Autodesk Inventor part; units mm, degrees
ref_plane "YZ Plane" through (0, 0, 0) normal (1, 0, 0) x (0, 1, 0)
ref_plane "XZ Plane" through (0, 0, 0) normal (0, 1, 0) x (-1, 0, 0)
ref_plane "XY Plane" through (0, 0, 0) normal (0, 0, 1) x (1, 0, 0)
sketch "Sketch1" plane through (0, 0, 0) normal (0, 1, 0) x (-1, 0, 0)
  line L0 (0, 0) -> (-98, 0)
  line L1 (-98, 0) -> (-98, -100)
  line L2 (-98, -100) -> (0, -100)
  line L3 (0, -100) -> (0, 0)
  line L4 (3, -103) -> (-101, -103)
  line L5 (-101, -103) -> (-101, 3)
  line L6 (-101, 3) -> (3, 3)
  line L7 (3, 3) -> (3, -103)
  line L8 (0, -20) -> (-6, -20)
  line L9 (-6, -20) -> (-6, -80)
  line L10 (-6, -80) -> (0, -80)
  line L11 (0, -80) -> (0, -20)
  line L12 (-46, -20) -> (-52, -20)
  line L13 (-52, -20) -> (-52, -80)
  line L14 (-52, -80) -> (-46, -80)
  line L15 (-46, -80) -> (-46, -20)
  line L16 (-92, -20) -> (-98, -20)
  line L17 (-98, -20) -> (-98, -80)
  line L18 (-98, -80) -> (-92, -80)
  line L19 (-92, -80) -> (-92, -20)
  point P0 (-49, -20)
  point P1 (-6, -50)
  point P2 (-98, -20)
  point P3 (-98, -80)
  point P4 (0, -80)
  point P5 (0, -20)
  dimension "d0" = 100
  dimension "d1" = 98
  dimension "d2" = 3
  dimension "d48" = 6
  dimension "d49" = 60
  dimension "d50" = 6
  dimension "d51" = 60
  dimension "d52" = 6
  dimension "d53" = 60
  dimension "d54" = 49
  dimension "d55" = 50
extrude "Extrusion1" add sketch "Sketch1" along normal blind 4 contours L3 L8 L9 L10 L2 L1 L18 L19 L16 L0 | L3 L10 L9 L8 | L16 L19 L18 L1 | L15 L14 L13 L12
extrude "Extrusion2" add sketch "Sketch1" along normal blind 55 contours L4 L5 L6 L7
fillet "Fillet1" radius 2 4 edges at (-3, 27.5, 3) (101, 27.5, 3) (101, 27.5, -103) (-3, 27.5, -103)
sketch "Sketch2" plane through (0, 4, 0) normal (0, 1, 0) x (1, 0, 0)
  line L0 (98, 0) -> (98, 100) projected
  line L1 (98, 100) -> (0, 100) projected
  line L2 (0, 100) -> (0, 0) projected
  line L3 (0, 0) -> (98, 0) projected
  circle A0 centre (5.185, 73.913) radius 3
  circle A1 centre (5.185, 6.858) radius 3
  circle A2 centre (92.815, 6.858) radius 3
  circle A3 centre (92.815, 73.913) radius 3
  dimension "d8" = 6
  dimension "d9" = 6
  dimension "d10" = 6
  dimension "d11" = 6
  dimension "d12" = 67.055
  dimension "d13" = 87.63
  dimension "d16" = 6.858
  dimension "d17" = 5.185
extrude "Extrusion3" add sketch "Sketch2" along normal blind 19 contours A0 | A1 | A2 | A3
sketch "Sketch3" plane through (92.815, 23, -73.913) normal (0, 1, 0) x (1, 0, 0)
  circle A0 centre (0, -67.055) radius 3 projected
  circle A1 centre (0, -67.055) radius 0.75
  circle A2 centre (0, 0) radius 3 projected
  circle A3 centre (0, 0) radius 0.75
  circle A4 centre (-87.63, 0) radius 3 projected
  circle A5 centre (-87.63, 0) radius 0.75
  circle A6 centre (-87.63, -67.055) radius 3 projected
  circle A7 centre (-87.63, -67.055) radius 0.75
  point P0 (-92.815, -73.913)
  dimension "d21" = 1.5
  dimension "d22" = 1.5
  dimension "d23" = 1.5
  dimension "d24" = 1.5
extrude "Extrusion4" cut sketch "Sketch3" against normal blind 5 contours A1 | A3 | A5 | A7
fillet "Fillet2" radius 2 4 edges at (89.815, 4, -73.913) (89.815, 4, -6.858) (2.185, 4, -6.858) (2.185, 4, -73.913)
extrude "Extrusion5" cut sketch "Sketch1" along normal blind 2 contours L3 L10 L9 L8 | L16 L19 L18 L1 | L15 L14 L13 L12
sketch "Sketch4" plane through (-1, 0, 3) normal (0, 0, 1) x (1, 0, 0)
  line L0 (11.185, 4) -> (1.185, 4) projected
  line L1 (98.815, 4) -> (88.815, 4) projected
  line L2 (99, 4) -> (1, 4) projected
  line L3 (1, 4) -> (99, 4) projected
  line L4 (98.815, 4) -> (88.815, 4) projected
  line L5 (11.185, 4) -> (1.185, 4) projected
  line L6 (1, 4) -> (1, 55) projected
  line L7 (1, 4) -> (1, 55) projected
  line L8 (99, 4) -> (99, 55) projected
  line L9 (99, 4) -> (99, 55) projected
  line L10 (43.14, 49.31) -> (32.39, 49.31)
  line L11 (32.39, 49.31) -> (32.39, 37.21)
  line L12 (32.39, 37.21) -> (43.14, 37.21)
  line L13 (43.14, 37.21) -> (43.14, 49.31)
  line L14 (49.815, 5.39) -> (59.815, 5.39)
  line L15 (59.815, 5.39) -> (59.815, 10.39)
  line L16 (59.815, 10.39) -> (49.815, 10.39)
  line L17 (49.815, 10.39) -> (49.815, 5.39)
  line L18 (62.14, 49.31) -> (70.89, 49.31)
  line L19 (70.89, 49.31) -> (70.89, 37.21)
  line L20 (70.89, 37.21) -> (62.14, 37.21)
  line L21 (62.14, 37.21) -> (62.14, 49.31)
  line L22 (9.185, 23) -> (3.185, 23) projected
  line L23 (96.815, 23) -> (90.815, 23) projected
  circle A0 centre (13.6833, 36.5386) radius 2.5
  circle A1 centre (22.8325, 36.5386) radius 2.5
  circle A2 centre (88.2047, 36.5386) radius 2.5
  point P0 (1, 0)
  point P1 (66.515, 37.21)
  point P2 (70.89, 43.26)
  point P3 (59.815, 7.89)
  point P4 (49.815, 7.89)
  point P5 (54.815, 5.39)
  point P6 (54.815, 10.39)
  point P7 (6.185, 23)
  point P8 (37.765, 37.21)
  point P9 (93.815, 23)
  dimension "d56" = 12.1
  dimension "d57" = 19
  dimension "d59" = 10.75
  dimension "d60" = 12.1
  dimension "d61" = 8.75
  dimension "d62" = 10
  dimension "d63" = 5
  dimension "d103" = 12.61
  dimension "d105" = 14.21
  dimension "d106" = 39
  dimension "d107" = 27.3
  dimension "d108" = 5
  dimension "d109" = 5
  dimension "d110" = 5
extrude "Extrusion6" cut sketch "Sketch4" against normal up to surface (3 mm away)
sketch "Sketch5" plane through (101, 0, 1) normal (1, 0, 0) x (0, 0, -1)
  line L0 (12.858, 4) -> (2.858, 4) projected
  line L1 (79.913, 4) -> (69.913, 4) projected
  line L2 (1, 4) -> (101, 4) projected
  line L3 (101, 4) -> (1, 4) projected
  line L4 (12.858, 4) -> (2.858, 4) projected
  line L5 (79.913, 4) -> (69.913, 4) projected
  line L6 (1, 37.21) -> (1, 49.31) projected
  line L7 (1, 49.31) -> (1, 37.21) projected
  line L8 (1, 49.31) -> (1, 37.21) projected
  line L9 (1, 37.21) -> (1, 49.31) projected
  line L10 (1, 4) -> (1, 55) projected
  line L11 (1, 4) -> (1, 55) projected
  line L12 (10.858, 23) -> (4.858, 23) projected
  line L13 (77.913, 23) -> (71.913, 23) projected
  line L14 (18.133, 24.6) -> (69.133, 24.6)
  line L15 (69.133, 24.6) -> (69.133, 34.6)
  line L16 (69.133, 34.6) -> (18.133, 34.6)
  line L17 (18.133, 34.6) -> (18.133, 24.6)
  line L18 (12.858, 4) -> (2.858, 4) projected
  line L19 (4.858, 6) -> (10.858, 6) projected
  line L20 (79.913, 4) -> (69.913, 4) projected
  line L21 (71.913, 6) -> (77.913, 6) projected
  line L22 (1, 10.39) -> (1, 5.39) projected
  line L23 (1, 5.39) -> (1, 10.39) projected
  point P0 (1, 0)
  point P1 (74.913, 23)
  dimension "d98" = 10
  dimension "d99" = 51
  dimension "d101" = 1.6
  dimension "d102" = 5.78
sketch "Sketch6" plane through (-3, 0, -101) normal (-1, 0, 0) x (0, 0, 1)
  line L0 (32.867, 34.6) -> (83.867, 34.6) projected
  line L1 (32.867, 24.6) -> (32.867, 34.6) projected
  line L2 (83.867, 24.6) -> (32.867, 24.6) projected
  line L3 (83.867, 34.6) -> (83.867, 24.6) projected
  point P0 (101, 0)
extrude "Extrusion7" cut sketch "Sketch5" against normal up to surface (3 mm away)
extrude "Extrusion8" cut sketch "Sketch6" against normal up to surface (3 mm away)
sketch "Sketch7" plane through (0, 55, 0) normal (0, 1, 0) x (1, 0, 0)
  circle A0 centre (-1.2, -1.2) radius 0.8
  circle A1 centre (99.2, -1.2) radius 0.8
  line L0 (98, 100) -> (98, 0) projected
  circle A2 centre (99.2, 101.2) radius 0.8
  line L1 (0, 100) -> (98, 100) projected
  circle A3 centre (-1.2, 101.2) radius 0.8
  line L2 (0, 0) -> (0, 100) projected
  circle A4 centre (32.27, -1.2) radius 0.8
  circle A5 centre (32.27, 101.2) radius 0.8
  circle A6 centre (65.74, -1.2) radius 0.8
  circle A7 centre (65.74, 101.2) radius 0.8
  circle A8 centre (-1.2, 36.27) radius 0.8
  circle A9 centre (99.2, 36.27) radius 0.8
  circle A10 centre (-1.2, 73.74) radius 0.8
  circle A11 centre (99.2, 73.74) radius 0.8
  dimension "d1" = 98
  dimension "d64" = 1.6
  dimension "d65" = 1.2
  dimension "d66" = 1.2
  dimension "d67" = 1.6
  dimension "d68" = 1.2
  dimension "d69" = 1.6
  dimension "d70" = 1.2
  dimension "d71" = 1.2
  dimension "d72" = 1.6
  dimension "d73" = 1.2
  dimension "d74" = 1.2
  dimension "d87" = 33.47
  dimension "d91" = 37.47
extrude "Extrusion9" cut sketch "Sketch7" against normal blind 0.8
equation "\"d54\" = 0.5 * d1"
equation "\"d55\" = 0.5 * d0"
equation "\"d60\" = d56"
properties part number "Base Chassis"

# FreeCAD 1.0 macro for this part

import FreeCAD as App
import Part
import Sketcher


def edges_at(feature, points):
    """Names of the edges that pass closest to the given points."""
    edges = feature.Shape.Edges
    near = lambda p: min(range(len(edges)), key=lambda i: edges[i].distToShape(Part.Vertex(*p))[0])
    return sorted({f"Edge{near(p) + 1}" for p in points})


def add_polygon(sketch, points):
    """Adds a closed chain of lines whose ends are joined by coincident constraints."""
    first, n = sketch.GeometryCount, len(points)
    for a, b in zip(points, points[1:] + points[:1]):
        sketch.addGeometry(Part.LineSegment(App.Vector(*a, 0), App.Vector(*b, 0)), False)
    for i in range(n):
        sketch.addConstraint(Sketcher.Constraint("Coincident", first + i, 2, first + (i + 1) % n, 1))

doc = App.newDocument("Part")
body = doc.addObject("PartDesign::Body", "Body")

# Sketch on XZ plane
sketch1 = body.newObject("Sketcher::SketchObject", "Sketch")
sketch1.AttachmentSupport = (doc.getObject("XZ_Plane"), [""])
sketch1.MapMode = "FlatFace"
add_polygon(sketch1, [(0, 0), (98, 0), (98, -100), (0, -100)])  # lines 0-3
sketch1.addConstraint([
    Sketcher.Constraint("Horizontal", 0),
    Sketcher.Constraint("Vertical", 1),
    Sketcher.Constraint("Horizontal", 2),
    Sketcher.Constraint("Vertical", 3),
    Sketcher.Constraint("Coincident", 3, 2, -1, 1),
    Sketcher.Constraint("DistanceX", 0, 1, 0, 2, 98.0),
    Sketcher.Constraint("DistanceY", 1, 2, 1, 1, 100.0),
])
pad1 = body.newObject("PartDesign::Pad", "Pad")
pad1.Profile = sketch1
pad1.Length = 4
pad1.Reversed = True

# Sketch on XZ plane
sketch2 = body.newObject("Sketcher::SketchObject", "Sketch001")
sketch2.AttachmentSupport = (doc.getObject("XZ_Plane"), [""])
sketch2.MapMode = "FlatFace"
add_polygon(sketch2, [(101, -103), (-3, -103), (-3, 3), (101, 3)])  # lines 0-3
add_polygon(sketch2, [(98, 0), (0, 0), (0, -100), (98, -100)])  # lines 4-7
sketch2.addConstraint([
    Sketcher.Constraint("Horizontal", 0),
    Sketcher.Constraint("Vertical", 1),
    Sketcher.Constraint("Horizontal", 2),
    Sketcher.Constraint("Vertical", 3),
    Sketcher.Constraint("Horizontal", 4),
    Sketcher.Constraint("Vertical", 5),
    Sketcher.Constraint("Horizontal", 6),
    Sketcher.Constraint("Vertical", 7),
    Sketcher.Constraint("Coincident", 4, 2, -1, 1),
    Sketcher.Constraint("DistanceX", 4, 2, 4, 1, 98.0),
    Sketcher.Constraint("DistanceY", 5, 2, 5, 1, 100.0),
    Sketcher.Constraint("DistanceX", 0, 2, -1, 1, 3.0),
    Sketcher.Constraint("DistanceY", -1, 1, 1, 2, 3.0),
    Sketcher.Constraint("DistanceY", 0, 2, 5, 2, 3.0),
    Sketcher.Constraint("DistanceX", 6, 2, 3, 2, 3.0),
])
pad2 = body.newObject("PartDesign::Pad", "Pad001")
pad2.Profile = sketch2
pad2.Length = 55
pad2.Reversed = True
doc.recompute()

fillet = body.newObject("PartDesign::Fillet", "Fillet")
fillet.Base = (pad2, edges_at(pad2, [
    (-3, 27.5, 3),
    (101, 27.5, 3),
    (101, 27.5, -103),
    (-3, 27.5, -103),
]))
fillet.Radius = 2

# Sketch on XZ plane
sketch3 = body.newObject("Sketcher::SketchObject", "Sketch002")
sketch3.AttachmentSupport = (doc.getObject("XZ_Plane"), [""])
sketch3.MapMode = "FlatFace"
sketch3.AttachmentOffset = App.Placement(App.Vector(0, 0, -4), App.Rotation())
sketch3.addGeometry([
    Part.Circle(App.Vector(5.2, -73.9, 0), App.Vector(0, 0, 1), 3),
    Part.Circle(App.Vector(5.2, -6.9, 0), App.Vector(0, 0, 1), 3),
    Part.Circle(App.Vector(92.8, -6.9, 0), App.Vector(0, 0, 1), 3),
    Part.Circle(App.Vector(92.8, -73.9, 0), App.Vector(0, 0, 1), 3),
], False)
sketch3.addConstraint([
    Sketcher.Constraint("Equal", 0, 1),
    Sketcher.Constraint("Equal", 1, 2),
    Sketcher.Constraint("Equal", 2, 3),
    Sketcher.Constraint("Horizontal", 1, 3, 2, 3),
    Sketcher.Constraint("Horizontal", 0, 3, 3, 3),
    Sketcher.Constraint("Vertical", 0, 3, 1, 3),
    Sketcher.Constraint("Vertical", 2, 3, 3, 3),
    Sketcher.Constraint("Diameter", 0, 6.0),
    Sketcher.Constraint("DistanceX", 1, 3, 2, 3, 87.63),
    Sketcher.Constraint("DistanceX", -1, 1, 0, 3, 5.185),
    Sketcher.Constraint("DistanceY", 1, 3, -1, 1, 6.858),
    Sketcher.Constraint("DistanceY", 0, 3, 1, 3, 67.055),
])
pad3 = body.newObject("PartDesign::Pad", "Pad002")
pad3.Profile = sketch3
pad3.Length = 19
pad3.Reversed = True

# Sketch on XZ plane
sketch4 = body.newObject("Sketcher::SketchObject", "Sketch003")
sketch4.AttachmentSupport = (doc.getObject("XZ_Plane"), [""])
sketch4.MapMode = "FlatFace"
sketch4.AttachmentOffset = App.Placement(App.Vector(0, 0, -23), App.Rotation())
sketch4.addGeometry([
    Part.Circle(App.Vector(92.8, -6.9, 0), App.Vector(0, 0, 1), 0.8),
    Part.Circle(App.Vector(92.8, -73.9, 0), App.Vector(0, 0, 1), 0.8),
    Part.Circle(App.Vector(5.2, -73.9, 0), App.Vector(0, 0, 1), 0.8),
    Part.Circle(App.Vector(5.2, -6.9, 0), App.Vector(0, 0, 1), 0.8),
], False)
sketch4.addConstraint([
    Sketcher.Constraint("Equal", 0, 1),
    Sketcher.Constraint("Equal", 1, 2),
    Sketcher.Constraint("Equal", 2, 3),
    Sketcher.Constraint("Horizontal", 1, 3, 2, 3),
    Sketcher.Constraint("Horizontal", 0, 3, 3, 3),
    Sketcher.Constraint("Vertical", 0, 3, 1, 3),
    Sketcher.Constraint("Vertical", 2, 3, 3, 3),
    Sketcher.Constraint("Diameter", 0, 1.5),
    Sketcher.Constraint("DistanceX", 2, 3, 1, 3, 87.63),
    Sketcher.Constraint("DistanceX", -1, 1, 0, 3, 92.815),
    Sketcher.Constraint("DistanceY", 0, 3, -1, 1, 6.858),
    Sketcher.Constraint("DistanceY", 1, 3, -1, 1, 73.913),
])
pocket1 = body.newObject("PartDesign::Pocket", "Pocket")
pocket1.Profile = sketch4
pocket1.Length = 5
pocket1.Reversed = True
doc.recompute()

fillet2 = body.newObject("PartDesign::Fillet", "Fillet001")
fillet2.Base = (pocket1, edges_at(pocket1, [
    (89.815, 4, -73.913),
    (89.815, 4, -6.858),
    (2.185, 4, -6.858),
    (2.185, 4, -73.913),
]))
fillet2.Radius = 2

# Sketch on XZ plane
sketch5 = body.newObject("Sketcher::SketchObject", "Sketch004")
sketch5.AttachmentSupport = (doc.getObject("XZ_Plane"), [""])
sketch5.MapMode = "FlatFace"
add_polygon(sketch5, [(0, -80), (0, -20), (6, -20), (6, -80)])  # lines 0-3
add_polygon(sketch5, [(92, -20), (98, -20), (98, -80), (92, -80)])  # lines 4-7
add_polygon(sketch5, [(46, -80), (46, -20), (52, -20), (52, -80)])  # lines 8-11
sketch5.addConstraint([
    Sketcher.Constraint("Vertical", 0),
    Sketcher.Constraint("Horizontal", 1),
    Sketcher.Constraint("Vertical", 2),
    Sketcher.Constraint("Horizontal", 3),
    Sketcher.Constraint("Horizontal", 4),
    Sketcher.Constraint("Vertical", 5),
    Sketcher.Constraint("Horizontal", 6),
    Sketcher.Constraint("Vertical", 7),
    Sketcher.Constraint("Vertical", 8),
    Sketcher.Constraint("Horizontal", 9),
    Sketcher.Constraint("Vertical", 10),
    Sketcher.Constraint("Horizontal", 11),
    Sketcher.Constraint("PointOnObject", 0, 2, -2),
    Sketcher.Constraint("Horizontal", 1, 2, 4, 2),
    Sketcher.Constraint("Horizontal", 3, 2, 5, 2),
    Sketcher.Constraint("Horizontal", 7, 2, 8, 2),
    Sketcher.Constraint("Horizontal", 6, 2, 10, 2),
    Sketcher.Constraint("Equal", 3, 4),
    Sketcher.Constraint("Equal", 6, 9),
    Sketcher.Constraint("DistanceX", 1, 1, 1, 2, 6.0),
    Sketcher.Constraint("DistanceY", 0, 1, 0, 2, 60.0),
    Sketcher.Constraint("DistanceX", -1, 1, 4, 2, 98.0),
    Sketcher.Constraint("DistanceY", 0, 2, -1, 1, 20.0),
    Sketcher.Constraint("DistanceX", -1, 1, 8, 2, 46.0),
])
pocket2 = body.newObject("PartDesign::Pocket", "Pocket001")
pocket2.Profile = sketch5
pocket2.Length = 2

# Sketch on XY plane
sketch6 = body.newObject("Sketcher::SketchObject", "Sketch005")
sketch6.AttachmentSupport = (doc.getObject("XY_Plane"), [""])
sketch6.MapMode = "FlatFace"
sketch6.AttachmentOffset = App.Placement(App.Vector(0, 0, 3), App.Rotation())
add_polygon(sketch6, [(42.1, 37.2), (42.1, 49.3), (31.4, 49.3), (31.4, 37.2)])  # lines 0-3
add_polygon(sketch6, [(48.8, 10.4), (48.8, 5.4), (58.8, 5.4), (58.8, 10.4)])  # lines 4-7
add_polygon(sketch6, [(69.9, 49.3), (61.1, 49.3), (61.1, 37.2), (69.9, 37.2)])  # lines 8-11
sketch6.addGeometry(Part.Circle(App.Vector(12.7, 36.5, 0), App.Vector(0, 0, 1), 2.5), False)  # 12
sketch6.addGeometry(Part.Circle(App.Vector(21.8, 36.5, 0), App.Vector(0, 0, 1), 2.5), False)  # 13
sketch6.addGeometry(Part.Circle(App.Vector(87.2, 36.5, 0), App.Vector(0, 0, 1), 2.5), False)  # 14
sketch6.addConstraint([
    Sketcher.Constraint("Vertical", 0),
    Sketcher.Constraint("Horizontal", 1),
    Sketcher.Constraint("Vertical", 2),
    Sketcher.Constraint("Horizontal", 3),
    Sketcher.Constraint("Vertical", 4),
    Sketcher.Constraint("Horizontal", 5),
    Sketcher.Constraint("Vertical", 6),
    Sketcher.Constraint("Horizontal", 7),
    Sketcher.Constraint("Horizontal", 8),
    Sketcher.Constraint("Vertical", 9),
    Sketcher.Constraint("Horizontal", 10),
    Sketcher.Constraint("Vertical", 11),
    Sketcher.Constraint("Equal", 12, 13),
    Sketcher.Constraint("Equal", 13, 14),
    Sketcher.Constraint("Horizontal", 12, 3, 13, 3),
    Sketcher.Constraint("Horizontal", 13, 3, 14, 3),
    Sketcher.Constraint("Horizontal", 1, 2, 8, 2),
    Sketcher.Constraint("Horizontal", 3, 2, 9, 2),
    Sketcher.Constraint("Diameter", 12, 5.0),
    Sketcher.Constraint("DistanceX", 5, 1, 5, 2, 10.0),
    Sketcher.Constraint("DistanceY", 4, 2, 4, 1, 5.0),
    Sketcher.Constraint("DistanceY", 0, 1, 0, 2, 12.1),
    Sketcher.Constraint("DistanceX", 0, 2, 8, 2, 19.0),
    Sketcher.Constraint("DistanceX", 1, 2, 1, 1, 10.75),
    Sketcher.Constraint("DistanceX", 8, 2, 8, 1, 8.75),
    Sketcher.Constraint("DistanceX", -1, 1, 0, 2, 42.14),
    Sketcher.Constraint("DistanceY", -1, 1, 0, 2, 49.31),
    Sketcher.Constraint("DistanceY", -1, 1, 4, 2, 5.39),
    Sketcher.Constraint("DistanceX", -1, 1, 4, 2, 48.815),
    Sketcher.Constraint("DistanceX", -1, 1, 12, 3, 12.6833),
    Sketcher.Constraint("DistanceY", -1, 1, 12, 3, 36.5386),
    Sketcher.Constraint("DistanceX", -1, 1, 13, 3, 21.8325),
    Sketcher.Constraint("DistanceX", -1, 1, 14, 3, 87.2047),
])
pocket3 = body.newObject("PartDesign::Pocket", "Pocket002")
pocket3.Profile = sketch6
pocket3.Length = 3

# Sketch on YZ plane
sketch7 = body.newObject("Sketcher::SketchObject", "Sketch006")
sketch7.AttachmentSupport = (doc.getObject("YZ_Plane"), [""])
sketch7.MapMode = "FlatFace"
sketch7.AttachmentOffset = App.Placement(App.Vector(0, 0, 101), App.Rotation())
add_polygon(sketch7, [(35, -17), (25, -17), (25, -68), (35, -68)])  # lines 0-3
sketch7.addConstraint([
    Sketcher.Constraint("Horizontal", 0),
    Sketcher.Constraint("Vertical", 1),
    Sketcher.Constraint("Horizontal", 2),
    Sketcher.Constraint("Vertical", 3),
    Sketcher.Constraint("DistanceX", 0, 2, 0, 1, 10.0),
    Sketcher.Constraint("DistanceY", 1, 2, 1, 1, 51.0),
    Sketcher.Constraint("DistanceX", -1, 1, 0, 2, 24.6),
    Sketcher.Constraint("DistanceY", 0, 2, -1, 1, 17.133),
])
pocket4 = body.newObject("PartDesign::Pocket", "Pocket003")
pocket4.Profile = sketch7
pocket4.Length = 3

# Sketch on YZ plane
sketch8 = body.newObject("Sketcher::SketchObject", "Sketch007")
sketch8.AttachmentSupport = (doc.getObject("YZ_Plane"), [""])
sketch8.MapMode = "FlatFace"
sketch8.AttachmentOffset = App.Placement(App.Vector(0, 0, -3), App.Rotation())
add_polygon(sketch8, [(35, -17), (35, -68), (25, -68), (25, -17)])  # lines 0-3
sketch8.addConstraint([
    Sketcher.Constraint("Vertical", 0),
    Sketcher.Constraint("Horizontal", 1),
    Sketcher.Constraint("Vertical", 2),
    Sketcher.Constraint("Horizontal", 3),
    Sketcher.Constraint("DistanceX", 1, 2, 1, 1, 10.0),
    Sketcher.Constraint("DistanceY", 0, 2, 0, 1, 51.0),
    Sketcher.Constraint("DistanceX", -1, 1, 0, 2, 34.6),
    Sketcher.Constraint("DistanceY", 0, 2, -1, 1, 68.133),
])
pocket5 = body.newObject("PartDesign::Pocket", "Pocket004")
pocket5.Profile = sketch8
pocket5.Length = 3
pocket5.Reversed = True

# Sketch on XZ plane
sketch9 = body.newObject("Sketcher::SketchObject", "Sketch008")
sketch9.AttachmentSupport = (doc.getObject("XZ_Plane"), [""])
sketch9.MapMode = "FlatFace"
sketch9.AttachmentOffset = App.Placement(App.Vector(0, 0, -55), App.Rotation())
sketch9.addGeometry([
    Part.Circle(App.Vector(-1.2, 1.2, 0), App.Vector(0, 0, 1), 0.8),  # 0
    Part.Circle(App.Vector(99.2, 1.2, 0), App.Vector(0, 0, 1), 0.8),  # 1
    Part.Circle(App.Vector(99.2, -101.2, 0), App.Vector(0, 0, 1), 0.8),  # 2
    Part.Circle(App.Vector(-1.2, -101.2, 0), App.Vector(0, 0, 1), 0.8),  # 3
    Part.Circle(App.Vector(32.3, 1.2, 0), App.Vector(0, 0, 1), 0.8),  # 4
    Part.Circle(App.Vector(32.3, -101.2, 0), App.Vector(0, 0, 1), 0.8),  # 5
    Part.Circle(App.Vector(65.7, 1.2, 0), App.Vector(0, 0, 1), 0.8),  # 6
    Part.Circle(App.Vector(65.7, -101.2, 0), App.Vector(0, 0, 1), 0.8),  # 7
    Part.Circle(App.Vector(-1.2, -36.3, 0), App.Vector(0, 0, 1), 0.8),  # 8
    Part.Circle(App.Vector(99.2, -36.3, 0), App.Vector(0, 0, 1), 0.8),  # 9
    Part.Circle(App.Vector(-1.2, -73.7, 0), App.Vector(0, 0, 1), 0.8),  # 10
    Part.Circle(App.Vector(99.2, -73.7, 0), App.Vector(0, 0, 1), 0.8),  # 11
], False)
sketch9.addConstraint([
    Sketcher.Constraint("Equal", 0, 1),
    Sketcher.Constraint("Equal", 1, 2),
    Sketcher.Constraint("Equal", 2, 3),
    Sketcher.Constraint("Equal", 3, 4),
    Sketcher.Constraint("Equal", 4, 5),
    Sketcher.Constraint("Equal", 5, 6),
    Sketcher.Constraint("Equal", 6, 7),
    Sketcher.Constraint("Equal", 7, 8),
    Sketcher.Constraint("Equal", 8, 9),
    Sketcher.Constraint("Equal", 9, 10),
    Sketcher.Constraint("Equal", 10, 11),
    Sketcher.Constraint("Horizontal", 0, 3, 1, 3),
    Sketcher.Constraint("Horizontal", 2, 3, 3, 3),
    Sketcher.Constraint("Horizontal", 1, 3, 4, 3),
    Sketcher.Constraint("Horizontal", 3, 3, 5, 3),
    Sketcher.Constraint("Horizontal", 4, 3, 6, 3),
    Sketcher.Constraint("Horizontal", 5, 3, 7, 3),
    Sketcher.Constraint("Horizontal", 8, 3, 9, 3),
    Sketcher.Constraint("Horizontal", 10, 3, 11, 3),
    Sketcher.Constraint("Vertical", 1, 3, 2, 3),
    Sketcher.Constraint("Vertical", 0, 3, 3, 3),
    Sketcher.Constraint("Vertical", 4, 3, 5, 3),
    Sketcher.Constraint("Vertical", 6, 3, 7, 3),
    Sketcher.Constraint("Vertical", 3, 3, 8, 3),
    Sketcher.Constraint("Vertical", 2, 3, 9, 3),
    Sketcher.Constraint("Vertical", 8, 3, 10, 3),
    Sketcher.Constraint("Vertical", 9, 3, 11, 3),
    Sketcher.Constraint("Diameter", 0, 1.6),
    Sketcher.Constraint("DistanceX", 0, 3, -1, 1, 1.2),
    Sketcher.Constraint("DistanceY", -1, 1, 0, 3, 1.2),
    Sketcher.Constraint("DistanceX", 0, 3, 4, 3, 33.47),
    Sketcher.Constraint("DistanceX", 4, 3, 6, 3, 33.47),
    Sketcher.Constraint("DistanceY", 8, 3, 0, 3, 37.47),
    Sketcher.Constraint("DistanceY", 10, 3, 8, 3, 37.47),
    Sketcher.Constraint("DistanceX", -1, 1, 1, 3, 99.2),
    Sketcher.Constraint("DistanceY", 2, 3, -1, 1, 101.2),
])
pocket6 = body.newObject("PartDesign::Pocket", "Pocket005")
pocket6.Profile = sketch9
pocket6.Length = 0.8
pocket6.Reversed = True

doc.recompute()
